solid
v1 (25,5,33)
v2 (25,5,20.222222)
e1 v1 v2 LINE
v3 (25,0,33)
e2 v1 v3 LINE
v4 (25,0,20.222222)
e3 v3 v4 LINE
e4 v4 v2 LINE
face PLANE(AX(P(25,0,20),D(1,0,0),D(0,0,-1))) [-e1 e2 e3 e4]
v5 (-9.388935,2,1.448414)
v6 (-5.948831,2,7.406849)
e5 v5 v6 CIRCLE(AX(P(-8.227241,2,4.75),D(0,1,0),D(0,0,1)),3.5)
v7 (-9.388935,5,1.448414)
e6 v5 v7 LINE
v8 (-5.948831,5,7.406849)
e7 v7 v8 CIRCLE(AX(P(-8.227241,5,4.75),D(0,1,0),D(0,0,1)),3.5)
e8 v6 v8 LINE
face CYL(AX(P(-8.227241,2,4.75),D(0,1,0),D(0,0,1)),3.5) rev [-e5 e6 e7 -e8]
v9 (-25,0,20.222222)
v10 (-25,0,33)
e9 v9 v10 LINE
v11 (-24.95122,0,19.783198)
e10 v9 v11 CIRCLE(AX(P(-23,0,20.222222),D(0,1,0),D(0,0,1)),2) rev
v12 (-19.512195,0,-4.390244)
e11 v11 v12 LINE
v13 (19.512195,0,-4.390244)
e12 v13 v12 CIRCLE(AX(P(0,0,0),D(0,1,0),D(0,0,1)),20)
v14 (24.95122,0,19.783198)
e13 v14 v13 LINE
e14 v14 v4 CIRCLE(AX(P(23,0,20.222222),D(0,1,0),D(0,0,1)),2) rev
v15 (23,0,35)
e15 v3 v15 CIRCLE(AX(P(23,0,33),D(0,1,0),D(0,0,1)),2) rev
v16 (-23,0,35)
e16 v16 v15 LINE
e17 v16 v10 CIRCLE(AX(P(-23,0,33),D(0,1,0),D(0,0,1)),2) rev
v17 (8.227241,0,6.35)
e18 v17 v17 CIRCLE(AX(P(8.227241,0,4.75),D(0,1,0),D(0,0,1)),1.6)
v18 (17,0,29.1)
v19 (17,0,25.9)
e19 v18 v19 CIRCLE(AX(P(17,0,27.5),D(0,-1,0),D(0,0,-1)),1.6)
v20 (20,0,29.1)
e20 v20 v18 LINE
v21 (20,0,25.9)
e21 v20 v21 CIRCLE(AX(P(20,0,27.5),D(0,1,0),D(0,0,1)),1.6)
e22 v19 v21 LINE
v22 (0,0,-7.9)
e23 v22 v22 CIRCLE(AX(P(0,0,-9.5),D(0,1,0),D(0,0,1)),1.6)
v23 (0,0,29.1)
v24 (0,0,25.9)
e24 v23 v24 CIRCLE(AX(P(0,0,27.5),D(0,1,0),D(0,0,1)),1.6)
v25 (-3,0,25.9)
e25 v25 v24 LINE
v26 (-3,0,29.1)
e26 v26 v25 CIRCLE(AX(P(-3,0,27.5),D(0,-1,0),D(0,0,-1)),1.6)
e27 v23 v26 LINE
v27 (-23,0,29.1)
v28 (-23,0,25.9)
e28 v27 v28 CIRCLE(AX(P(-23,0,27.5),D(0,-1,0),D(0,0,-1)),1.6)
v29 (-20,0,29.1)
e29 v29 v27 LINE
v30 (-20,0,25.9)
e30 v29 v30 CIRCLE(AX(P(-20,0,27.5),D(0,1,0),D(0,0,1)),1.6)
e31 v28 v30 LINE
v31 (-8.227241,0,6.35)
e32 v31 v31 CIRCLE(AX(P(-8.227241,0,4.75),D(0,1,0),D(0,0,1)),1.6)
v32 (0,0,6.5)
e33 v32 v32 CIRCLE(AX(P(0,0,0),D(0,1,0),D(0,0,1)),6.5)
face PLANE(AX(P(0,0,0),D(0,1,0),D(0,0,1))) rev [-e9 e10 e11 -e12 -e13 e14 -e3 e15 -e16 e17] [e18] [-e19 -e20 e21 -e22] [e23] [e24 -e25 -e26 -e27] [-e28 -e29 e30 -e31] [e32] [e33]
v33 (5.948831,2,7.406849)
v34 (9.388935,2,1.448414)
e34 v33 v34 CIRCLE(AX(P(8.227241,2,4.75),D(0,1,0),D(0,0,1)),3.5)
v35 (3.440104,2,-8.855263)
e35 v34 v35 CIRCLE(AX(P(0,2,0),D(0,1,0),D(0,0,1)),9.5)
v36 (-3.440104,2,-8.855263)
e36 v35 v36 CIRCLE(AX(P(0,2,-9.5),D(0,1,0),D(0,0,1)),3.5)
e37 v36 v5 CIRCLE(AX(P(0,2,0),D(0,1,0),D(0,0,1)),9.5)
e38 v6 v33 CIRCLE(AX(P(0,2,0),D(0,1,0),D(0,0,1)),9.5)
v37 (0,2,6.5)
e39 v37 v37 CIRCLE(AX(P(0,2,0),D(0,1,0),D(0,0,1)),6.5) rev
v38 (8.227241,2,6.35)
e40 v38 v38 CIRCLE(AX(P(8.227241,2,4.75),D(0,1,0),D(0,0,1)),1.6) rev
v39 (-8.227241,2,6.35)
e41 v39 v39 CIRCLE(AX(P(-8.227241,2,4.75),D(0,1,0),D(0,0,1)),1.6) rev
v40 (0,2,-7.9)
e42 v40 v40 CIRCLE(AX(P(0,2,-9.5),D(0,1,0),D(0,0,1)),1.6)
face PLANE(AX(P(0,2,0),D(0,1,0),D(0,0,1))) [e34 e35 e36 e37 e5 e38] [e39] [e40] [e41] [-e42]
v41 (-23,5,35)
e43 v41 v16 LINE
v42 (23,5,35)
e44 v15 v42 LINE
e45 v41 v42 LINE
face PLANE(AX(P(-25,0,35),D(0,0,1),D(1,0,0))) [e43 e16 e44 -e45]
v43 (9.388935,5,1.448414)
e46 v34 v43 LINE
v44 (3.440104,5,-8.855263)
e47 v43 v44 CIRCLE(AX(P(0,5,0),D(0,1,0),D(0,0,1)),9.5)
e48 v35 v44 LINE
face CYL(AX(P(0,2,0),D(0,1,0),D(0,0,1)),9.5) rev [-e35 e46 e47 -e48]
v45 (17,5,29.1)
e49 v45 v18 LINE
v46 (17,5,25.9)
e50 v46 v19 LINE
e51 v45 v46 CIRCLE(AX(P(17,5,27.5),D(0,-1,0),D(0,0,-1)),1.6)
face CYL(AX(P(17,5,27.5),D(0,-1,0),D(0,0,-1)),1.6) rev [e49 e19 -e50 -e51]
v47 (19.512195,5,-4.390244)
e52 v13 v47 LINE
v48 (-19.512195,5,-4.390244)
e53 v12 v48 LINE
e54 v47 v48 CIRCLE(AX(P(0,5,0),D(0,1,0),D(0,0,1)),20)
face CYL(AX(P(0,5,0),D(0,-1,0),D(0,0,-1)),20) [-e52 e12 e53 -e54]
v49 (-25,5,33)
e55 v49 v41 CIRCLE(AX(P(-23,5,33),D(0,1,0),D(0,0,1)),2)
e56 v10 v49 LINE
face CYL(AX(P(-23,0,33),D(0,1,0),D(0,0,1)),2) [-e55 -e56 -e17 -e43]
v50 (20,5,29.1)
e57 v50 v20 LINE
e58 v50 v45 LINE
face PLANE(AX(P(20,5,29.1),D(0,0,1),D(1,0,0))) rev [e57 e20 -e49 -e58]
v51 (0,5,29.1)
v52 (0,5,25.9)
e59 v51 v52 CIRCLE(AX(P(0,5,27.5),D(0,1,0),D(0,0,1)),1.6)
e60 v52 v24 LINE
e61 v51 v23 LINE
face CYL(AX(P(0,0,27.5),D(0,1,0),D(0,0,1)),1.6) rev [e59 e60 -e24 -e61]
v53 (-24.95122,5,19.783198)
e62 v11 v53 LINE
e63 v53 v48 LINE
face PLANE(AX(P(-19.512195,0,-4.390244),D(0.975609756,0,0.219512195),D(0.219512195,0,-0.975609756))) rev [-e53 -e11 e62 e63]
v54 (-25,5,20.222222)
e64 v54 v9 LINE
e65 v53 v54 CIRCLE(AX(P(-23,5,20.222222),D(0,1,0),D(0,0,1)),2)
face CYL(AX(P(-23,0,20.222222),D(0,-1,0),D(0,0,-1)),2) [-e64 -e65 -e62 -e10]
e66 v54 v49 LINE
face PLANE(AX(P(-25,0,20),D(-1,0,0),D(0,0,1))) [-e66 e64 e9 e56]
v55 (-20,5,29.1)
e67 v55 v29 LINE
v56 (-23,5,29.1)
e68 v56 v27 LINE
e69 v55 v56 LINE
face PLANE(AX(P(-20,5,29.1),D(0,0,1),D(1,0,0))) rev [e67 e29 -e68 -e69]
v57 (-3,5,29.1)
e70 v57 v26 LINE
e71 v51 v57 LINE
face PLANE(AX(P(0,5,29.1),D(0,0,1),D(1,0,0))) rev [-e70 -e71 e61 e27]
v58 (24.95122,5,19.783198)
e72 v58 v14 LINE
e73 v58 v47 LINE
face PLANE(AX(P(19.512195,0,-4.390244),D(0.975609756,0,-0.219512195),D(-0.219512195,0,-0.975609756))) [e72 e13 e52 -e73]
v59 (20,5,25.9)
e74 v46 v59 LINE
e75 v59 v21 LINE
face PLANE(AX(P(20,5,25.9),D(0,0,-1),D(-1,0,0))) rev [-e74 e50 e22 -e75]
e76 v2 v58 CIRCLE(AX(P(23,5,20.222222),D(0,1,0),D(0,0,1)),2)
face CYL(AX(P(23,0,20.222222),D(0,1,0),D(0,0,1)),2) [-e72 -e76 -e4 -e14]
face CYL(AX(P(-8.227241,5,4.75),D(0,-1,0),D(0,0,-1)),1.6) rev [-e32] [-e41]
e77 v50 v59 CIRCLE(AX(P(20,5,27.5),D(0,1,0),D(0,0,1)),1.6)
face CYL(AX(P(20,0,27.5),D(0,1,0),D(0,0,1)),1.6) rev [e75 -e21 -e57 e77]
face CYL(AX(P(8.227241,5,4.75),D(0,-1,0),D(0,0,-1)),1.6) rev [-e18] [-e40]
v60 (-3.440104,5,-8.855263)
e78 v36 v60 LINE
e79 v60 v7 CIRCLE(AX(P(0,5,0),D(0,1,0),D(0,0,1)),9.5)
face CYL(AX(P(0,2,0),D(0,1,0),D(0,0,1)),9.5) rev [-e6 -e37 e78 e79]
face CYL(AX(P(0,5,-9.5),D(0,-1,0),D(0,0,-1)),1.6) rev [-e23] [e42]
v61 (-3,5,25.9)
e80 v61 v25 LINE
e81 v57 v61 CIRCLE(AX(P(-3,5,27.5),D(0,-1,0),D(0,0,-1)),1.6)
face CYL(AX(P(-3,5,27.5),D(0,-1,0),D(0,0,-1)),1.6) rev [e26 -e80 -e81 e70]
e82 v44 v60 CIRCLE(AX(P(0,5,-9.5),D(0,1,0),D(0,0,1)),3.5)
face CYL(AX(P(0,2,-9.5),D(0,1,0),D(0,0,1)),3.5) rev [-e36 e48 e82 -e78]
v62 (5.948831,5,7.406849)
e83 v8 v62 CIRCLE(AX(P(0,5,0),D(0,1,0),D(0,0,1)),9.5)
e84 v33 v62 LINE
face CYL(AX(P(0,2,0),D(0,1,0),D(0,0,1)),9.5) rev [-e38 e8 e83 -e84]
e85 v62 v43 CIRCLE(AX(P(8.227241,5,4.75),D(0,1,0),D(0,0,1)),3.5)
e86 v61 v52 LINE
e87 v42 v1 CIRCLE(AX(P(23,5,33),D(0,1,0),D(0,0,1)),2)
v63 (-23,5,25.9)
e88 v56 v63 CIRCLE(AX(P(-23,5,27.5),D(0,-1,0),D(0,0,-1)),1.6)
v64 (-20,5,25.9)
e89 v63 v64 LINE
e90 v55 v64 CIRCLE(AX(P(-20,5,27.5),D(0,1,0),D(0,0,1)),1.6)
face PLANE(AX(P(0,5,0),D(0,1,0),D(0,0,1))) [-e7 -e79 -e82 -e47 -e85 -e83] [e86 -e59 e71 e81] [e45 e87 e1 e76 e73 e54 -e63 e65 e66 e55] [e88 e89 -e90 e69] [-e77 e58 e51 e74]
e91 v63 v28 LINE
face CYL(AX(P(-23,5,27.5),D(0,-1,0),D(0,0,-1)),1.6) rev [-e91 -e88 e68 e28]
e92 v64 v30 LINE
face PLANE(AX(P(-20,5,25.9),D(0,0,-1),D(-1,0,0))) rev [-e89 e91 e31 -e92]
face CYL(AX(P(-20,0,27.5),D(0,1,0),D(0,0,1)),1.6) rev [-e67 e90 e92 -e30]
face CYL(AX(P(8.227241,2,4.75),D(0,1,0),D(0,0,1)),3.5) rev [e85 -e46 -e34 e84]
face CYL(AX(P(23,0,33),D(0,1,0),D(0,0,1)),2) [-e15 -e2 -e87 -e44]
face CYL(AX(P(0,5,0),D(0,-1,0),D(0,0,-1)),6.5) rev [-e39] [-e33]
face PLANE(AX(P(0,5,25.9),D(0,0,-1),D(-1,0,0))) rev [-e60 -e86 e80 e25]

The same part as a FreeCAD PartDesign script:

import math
import FreeCAD as App
import Part
import Sketcher
Q = App.Units.Quantity


def edges_at(feature, points):
    """Names of the edges that pass closest to the given points."""
    edges = feature.Shape.Edges
    near = lambda p: min(range(len(edges)), key=lambda i: edges[i].distToShape(Part.Vertex(*p))[0])
    return sorted({f"Edge{near(p) + 1}" for p in points})

doc = App.newDocument("Part")
body = doc.addObject("PartDesign::Body", "Body")

sketch1 = body.newObject("Sketcher::SketchObject", "Sketch")
sketch1.AttachmentSupport = (doc.getObject("XZ_Plane"), [""])
sketch1.MapMode = "FlatFace"
sketch1.addGeometry([
    Part.Circle(App.Vector(0, 0, 0), App.Vector(0, 0, 1), 20),
    Part.Circle(App.Vector(0, -9.5, 0), App.Vector(0, 0, 1), 1.6),
    Part.Circle(App.Vector(-8.227241, 4.75, 0), App.Vector(0, 0, 1), 1.6),
    Part.Circle(App.Vector(0, 0, 0), App.Vector(0, 0, 1), 6.5),
    Part.Circle(App.Vector(8.227241, 4.75, 0), App.Vector(0, 0, 1), 1.6),
], False)
sketch1.addConstraint([
    Sketcher.Constraint("Coincident", 0, 3, -1, 1),
    Sketcher.Constraint("Coincident", 3, 3, -1, 1),
    Sketcher.Constraint("Equal", 1, 2),
    Sketcher.Constraint("Equal", 2, 4),
    Sketcher.Constraint("Symmetric", 2, 3, 4, 3, -2),
    Sketcher.Constraint("PointOnObject", 1, 3, -2),
    Sketcher.Constraint("Diameter", 0, Q("40 mm")),
    Sketcher.Constraint("Diameter", 3, Q("13 mm")),
    Sketcher.Constraint("Diameter", 1, Q("3.2 mm")),
    Sketcher.Constraint("DistanceY", 1, 3, -1, 1, Q("9.5 mm")),
    Sketcher.Constraint("DistanceY", -1, 1, 2, 3, Q("4.75 mm")),
    Sketcher.Constraint("DistanceX", 2, 3, -1, 1, Q("8.227241 mm")),
])
pad1 = body.newObject("PartDesign::Pad", "Pad")
pad1.Profile = sketch1
pad1.Length = 5
pad1.Reversed = True
body2 = doc.addObject("PartDesign::Body", "Body001")

sketch2 = body2.newObject("Sketcher::SketchObject", "Sketch001")
sketch2.AttachmentSupport = (doc.getObject("XZ_Plane001"), [""])
sketch2.MapMode = "FlatFace"
sketch2.AttachmentOffset = App.Placement(App.Vector(0, 0, -5), App.Rotation())
sketch2.addGeometry([
    Part.LineSegment(App.Vector(-25, 20, 0), App.Vector(-25, 35, 0)),
    Part.LineSegment(App.Vector(-25, 35, 0), App.Vector(25, 35, 0)),
    Part.LineSegment(App.Vector(25, 35, 0), App.Vector(25, 20, 0)),
    Part.LineSegment(App.Vector(25, 20, 0), App.Vector(-25, 20, 0)),
    Part.Circle(App.Vector(-20, 27.5, 0), App.Vector(0, 0, 1), 1.6),
    Part.Circle(App.Vector(0, 27.5, 0), App.Vector(0, 0, 1), 1.6),
    Part.Circle(App.Vector(20, 27.5, 0), App.Vector(0, 0, 1), 1.6),
], False)
sketch2.addConstraint([
    Sketcher.Constraint("Coincident", 0, 2, 1, 1),
    Sketcher.Constraint("Coincident", 1, 2, 2, 1),
    Sketcher.Constraint("Coincident", 2, 2, 3, 1),
    Sketcher.Constraint("Coincident", 3, 2, 0, 1),
    Sketcher.Constraint("Vertical", 0),
    Sketcher.Constraint("Horizontal", 1),
    Sketcher.Constraint("Vertical", 2),
    Sketcher.Constraint("Horizontal", 3),
    Sketcher.Constraint("Equal", 4, 5),
    Sketcher.Constraint("Equal", 5, 6),
    Sketcher.Constraint("Symmetric", 4, 3, 6, 3, -2),
    Sketcher.Constraint("PointOnObject", 5, 3, -2),
    Sketcher.Constraint("Horizontal", 4, 3, 5, 3),
    Sketcher.Constraint("Diameter", 4, Q("3.2 mm")),
    Sketcher.Constraint("DistanceX", 1, 1, 1, 2, Q("50 mm")),
    Sketcher.Constraint("DistanceY", 0, 1, 0, 2, Q("15 mm")),
    Sketcher.Constraint("DistanceX", 4, 3, -1, 1, Q("20 mm")),
    Sketcher.Constraint("DistanceX", 0, 2, -1, 1, Q("25 mm")),
    Sketcher.Constraint("DistanceY", -1, 1, 0, 2, Q("35 mm")),
    Sketcher.Constraint("DistanceY", -1, 1, 4, 3, Q("27.5 mm")),
])
pad2 = body2.newObject("PartDesign::Pad", "Pad001")
pad2.Profile = sketch2
pad2.Length = 5
body.AllowCompound = True
doc.recompute()

boolean = body.newObject("PartDesign::Boolean", "Boolean")
boolean.Type = "Fuse"
boolean.addObjects([body2])

sketch3 = body.newObject("Sketcher::SketchObject", "Sketch002")
sketch3.AttachmentSupport = (doc.getObject("XZ_Plane"), [""])
sketch3.MapMode = "FlatFace"
sketch3.addGeometry([
    Part.LineSegment(App.Vector(-19.512195, -4.390244, 0), App.Vector(-25, 20, 0)),
    Part.LineSegment(App.Vector(-25, 20, 0), App.Vector(0, 20, 0)),
    Part.ArcOfCircle(Part.Circle(App.Vector(0, 0, 0), App.Vector(0, 0, 1), 20), math.radians(90), math.radians(192.680383)),
    Part.ArcOfCircle(Part.Circle(App.Vector(0, 0, 0), App.Vector(0, 0, 1), 20), math.radians(0), math.radians(90)),
    Part.LineSegment(App.Vector(0, 20, 0), App.Vector(25, 20, 0)),
    Part.LineSegment(App.Vector(25, 20, 0), App.Vector(19.512195, -4.390244, 0)),
    Part.ArcOfCircle(Part.Circle(App.Vector(0, 0, 0), App.Vector(0, 0, 1), 20), math.radians(-12.680383), math.radians(0)),
], False)
sketch3.addConstraint([
    Sketcher.Constraint("Coincident", 0, 2, 1, 1),
    Sketcher.Constraint("Tangent", 1, 2, 2, 1),
    Sketcher.Constraint("Tangent", 2, 2, 0, 1),
    Sketcher.Constraint("Tangent", 3, 2, 4, 1),
    Sketcher.Constraint("Coincident", 4, 2, 5, 1),
    Sketcher.Constraint("Tangent", 5, 2, 6, 1),
    Sketcher.Constraint("Tangent", 6, 2, 3, 1),
    Sketcher.Constraint("Horizontal", 1),
    Sketcher.Constraint("Horizontal", 4),
    Sketcher.Constraint("Coincident", 2, 3, -1, 1),
    Sketcher.Constraint("Coincident", 3, 3, -1, 1),
    Sketcher.Constraint("Equal", 2, 3),
    Sketcher.Constraint("Equal", 3, 6),
    Sketcher.Constraint("PointOnObject", 6, 2, -1),
    Sketcher.Constraint("Horizontal", 2, 2, 5, 2),
    Sketcher.Constraint("Radius", 2, Q("20 mm")),
    Sketcher.Constraint("DistanceX", 1, 1, 1, 2, Q("25 mm")),
])
pad3 = body.newObject("PartDesign::Pad", "Pad002")
pad3.Profile = sketch3
pad3.Length = 5
pad3.Reversed = True

sketch4 = body.newObject("Sketcher::SketchObject", "Sketch003")
sketch4.AttachmentSupport = (doc.getObject("XZ_Plane"), [""])
sketch4.MapMode = "FlatFace"
sketch4.AttachmentOffset = App.Placement(App.Vector(0, 0, -2), App.Rotation())
sketch4.addGeometry([
    Part.ArcOfCircle(Part.Circle(App.Vector(0, 0, 0), App.Vector(0, 0, 1), 9.5), math.radians(-68.769784), math.radians(8.769784)),
    Part.ArcOfCircle(Part.Circle(App.Vector(0, -9.5, 0), App.Vector(0, 0, 1), 3.5), math.radians(169.384892), math.radians(370.615108)),
    Part.ArcOfCircle(Part.Circle(App.Vector(0, 0, 0), App.Vector(0, 0, 1), 9.5), math.radians(171.230216), math.radians(248.769784)),
    Part.ArcOfCircle(Part.Circle(App.Vector(-8.227241, 4.75, 0), App.Vector(0, 0, 1), 3.5), math.radians(49.384892), math.radians(250.615108)),
    Part.ArcOfCircle(Part.Circle(App.Vector(0, 0, 0), App.Vector(0, 0, 1), 9.5), math.radians(51.230216), math.radians(128.769784)),
    Part.ArcOfCircle(Part.Circle(App.Vector(8.227241, 4.75, 0), App.Vector(0, 0, 1), 3.5), math.radians(-70.615108), math.radians(130.615108)),
], False)
sketch4.addConstraint([
    Sketcher.Constraint("Coincident", 0, 1, 1, 2),
    Sketcher.Constraint("Coincident", 1, 1, 2, 2),
    Sketcher.Constraint("Coincident", 2, 1, 3, 2),
    Sketcher.Constraint("Coincident", 3, 1, 4, 2),
    Sketcher.Constraint("Coincident", 4, 1, 5, 2),
    Sketcher.Constraint("Coincident", 5, 1, 0, 2),
    Sketcher.Constraint("Coincident", 0, 3, -1, 1),
    Sketcher.Constraint("Coincident", 2, 3, -1, 1),
    Sketcher.Constraint("Coincident", 4, 3, -1, 1),
    Sketcher.Constraint("Equal", 0, 2),
    Sketcher.Constraint("Equal", 1, 3),
    Sketcher.Constraint("Equal", 2, 4),
    Sketcher.Constraint("Equal", 3, 5),
    Sketcher.Constraint("Symmetric", 3, 3, 5, 3, -2),
    Sketcher.Constraint("PointOnObject", 1, 3, -2),
    Sketcher.Constraint("Radius", 0, Q("9.5 mm")),
    Sketcher.Constraint("Radius", 1, Q("3.5 mm")),
    Sketcher.Constraint("DistanceY", 1, 3, -1, 1, Q("9.5 mm")),
    Sketcher.Constraint("DistanceY", -1, 1, 3, 3, Q("4.75 mm")),
    Sketcher.Constraint("DistanceX", 3, 3, -1, 1, Q("8.227241 mm")),
])
pocket1 = body.newObject("PartDesign::Pocket", "Pocket")
pocket1.Profile = sketch4
pocket1.Length = 3
doc.recompute()

fillet = body.newObject("PartDesign::Fillet", "Fillet")
fillet.Base = (pocket1, edges_at(pocket1, [
    (-25, 2.5, 20),
    (25, 2.5, 20),
    (25, 2.5, 35),
    (-25, 2.5, 35),
]))
fillet.Radius = 2

sketch5 = body.newObject("Sketcher::SketchObject", "Sketch004")
sketch5.AttachmentSupport = (doc.getObject("XZ_Plane"), [""])
sketch5.MapMode = "FlatFace"
sketch5.addGeometry([
    Part.LineSegment(App.Vector(17, 25.9, 0), App.Vector(20, 25.9, 0)),
    Part.ArcOfCircle(Part.Circle(App.Vector(20, 27.5, 0), App.Vector(0, 0, 1), 1.6), math.radians(-90), math.radians(90)),
    Part.LineSegment(App.Vector(20, 29.1, 0), App.Vector(17, 29.1, 0)),
    Part.ArcOfCircle(Part.Circle(App.Vector(17, 27.5, 0), App.Vector(0, 0, 1), 1.6), math.radians(90), math.radians(270)),
    Part.LineSegment(App.Vector(-3, 25.9, 0), App.Vector(0, 25.9, 0)),
    Part.ArcOfCircle(Part.Circle(App.Vector(0, 27.5, 0), App.Vector(0, 0, 1), 1.6), math.radians(-90), math.radians(90)),
    Part.LineSegment(App.Vector(0, 29.1, 0), App.Vector(-3, 29.1, 0)),
    Part.ArcOfCircle(Part.Circle(App.Vector(-3, 27.5, 0), App.Vector(0, 0, 1), 1.6), math.radians(90), math.radians(270)),
    Part.LineSegment(App.Vector(-23, 25.9, 0), App.Vector(-20, 25.9, 0)),
    Part.ArcOfCircle(Part.Circle(App.Vector(-20, 27.5, 0), App.Vector(0, 0, 1), 1.6), math.radians(-90), math.radians(90)),
    Part.LineSegment(App.Vector(-20, 29.1, 0), App.Vector(-23, 29.1, 0)),
    Part.ArcOfCircle(Part.Circle(App.Vector(-23, 27.5, 0), App.Vector(0, 0, 1), 1.6), math.radians(90), math.radians(270)),
], False)
sketch5.addConstraint([
    Sketcher.Constraint("Tangent", 0, 2, 1, 1),
    Sketcher.Constraint("Tangent", 1, 2, 2, 1),
    Sketcher.Constraint("Tangent", 2, 2, 3, 1),
    Sketcher.Constraint("Tangent", 3, 2, 0, 1),
    Sketcher.Constraint("Tangent", 4, 2, 5, 1),
    Sketcher.Constraint("Tangent", 5, 2, 6, 1),
    Sketcher.Constraint("Tangent", 6, 2, 7, 1),
    Sketcher.Constraint("Tangent", 7, 2, 4, 1),
    Sketcher.Constraint("Tangent", 8, 2, 9, 1),
    Sketcher.Constraint("Tangent", 9, 2, 10, 1),
    Sketcher.Constraint("Tangent", 10, 2, 11, 1),
    Sketcher.Constraint("Tangent", 11, 2, 8, 1),
    Sketcher.Constraint("Horizontal", 0),
    Sketcher.Constraint("Horizontal", 2),
    Sketcher.Constraint("Horizontal", 4),
    Sketcher.Constraint("Horizontal", 6),
    Sketcher.Constraint("Horizontal", 8),
    Sketcher.Constraint("Horizontal", 10),
    Sketcher.Constraint("Equal", 3, 5),
    Sketcher.Constraint("Equal", 7, 9),
    Sketcher.Constraint("Symmetric", 1, 3, 9, 3, -2),
    Sketcher.Constraint("PointOnObject", 5, 3, -2),
    Sketcher.Constraint("Horizontal", 3, 3, 5, 3),
    Sketcher.Constraint("Equal", 2, 4),
    Sketcher.Constraint("Equal", 6, 8),
    Sketcher.Constraint("Radius", 1, Q("1.6 mm")),
    Sketcher.Constraint("DistanceX", 0, 1, 0, 2, Q("3 mm")),
    Sketcher.Constraint("DistanceX", -1, 1, 1, 3, Q("20 mm")),
    Sketcher.Constraint("DistanceY", -1, 1, 1, 3, Q("27.5 mm")),
])
pocket2 = body.newObject("PartDesign::Pocket", "Pocket001")
pocket2.Profile = sketch5
pocket2.Type = "ThroughAll"

doc.recompute()
